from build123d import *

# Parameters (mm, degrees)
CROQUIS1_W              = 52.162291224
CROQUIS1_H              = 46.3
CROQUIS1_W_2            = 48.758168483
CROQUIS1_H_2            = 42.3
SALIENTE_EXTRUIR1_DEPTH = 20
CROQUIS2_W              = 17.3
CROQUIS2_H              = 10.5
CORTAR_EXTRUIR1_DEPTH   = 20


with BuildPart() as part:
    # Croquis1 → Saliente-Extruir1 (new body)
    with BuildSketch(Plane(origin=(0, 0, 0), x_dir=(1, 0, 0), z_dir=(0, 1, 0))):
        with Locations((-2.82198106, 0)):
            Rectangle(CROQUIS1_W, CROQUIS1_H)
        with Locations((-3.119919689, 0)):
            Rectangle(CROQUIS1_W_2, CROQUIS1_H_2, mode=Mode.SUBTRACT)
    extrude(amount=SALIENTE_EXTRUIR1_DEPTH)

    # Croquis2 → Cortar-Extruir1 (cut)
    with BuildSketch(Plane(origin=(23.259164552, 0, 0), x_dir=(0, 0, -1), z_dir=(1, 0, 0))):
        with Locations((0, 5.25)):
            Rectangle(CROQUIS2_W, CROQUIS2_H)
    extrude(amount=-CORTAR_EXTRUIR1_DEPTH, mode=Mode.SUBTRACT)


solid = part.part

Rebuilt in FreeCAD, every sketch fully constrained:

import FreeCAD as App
import Part
import Sketcher
from FreeCAD import Vector
Q = App.Units.Quantity

doc = App.newDocument("Part")
body = doc.addObject("PartDesign::Body", "Body")

sketch1 = body.newObject("Sketcher::SketchObject", "Sketch")
sketch1.AttachmentSupport = (doc.getObject("XZ_Plane"), [""])
sketch1.MapMode = "FlatFace"
sketch1.addGeometry([
    Part.LineSegment(Vector(-28.903127, -23.15, 0), Vector(-28.903127, 23.15, 0)),
    Part.LineSegment(Vector(-28.903127, 23.15, 0), Vector(23.259165, 23.15, 0)),
    Part.LineSegment(Vector(23.259165, 23.15, 0), Vector(23.259165, -23.15, 0)),
    Part.LineSegment(Vector(23.259165, -23.15, 0), Vector(-28.903127, -23.15, 0)),
    Part.LineSegment(Vector(21.259165, 21.15, 0), Vector(-27.499004, 21.15, 0)),
    Part.LineSegment(Vector(-27.499004, 21.15, 0), Vector(-27.499004, -21.15, 0)),
    Part.LineSegment(Vector(-27.499004, -21.15, 0), Vector(21.259165, -21.15, 0)),
    Part.LineSegment(Vector(21.259165, -21.15, 0), Vector(21.259165, 21.15, 0)),
], False)
sketch1.addConstraint([
    Sketcher.Constraint("Coincident", 0, 2, 1, 1),
    Sketcher.Constraint("Coincident", 1, 2, 2, 1),
    Sketcher.Constraint("Coincident", 2, 2, 3, 1),
    Sketcher.Constraint("Coincident", 3, 2, 0, 1),
    Sketcher.Constraint("Coincident", 4, 2, 5, 1),
    Sketcher.Constraint("Coincident", 5, 2, 6, 1),
    Sketcher.Constraint("Coincident", 6, 2, 7, 1),
    Sketcher.Constraint("Coincident", 7, 2, 4, 1),
    Sketcher.Constraint("Vertical", 0),
    Sketcher.Constraint("Horizontal", 1),
    Sketcher.Constraint("Vertical", 2),
    Sketcher.Constraint("Horizontal", 3),
    Sketcher.Constraint("Horizontal", 4),
    Sketcher.Constraint("Vertical", 5),
    Sketcher.Constraint("Horizontal", 6),
    Sketcher.Constraint("Vertical", 7),
    Sketcher.Constraint("DistanceY", 0, 1, 0, 2, Q("46.3 mm")),
    Sketcher.Constraint("DistanceY", 5, 2, 5, 1, Q("42.3 mm")),
    Sketcher.Constraint("DistanceY", 4, 2, 0, 2, Q("2 mm")),
    Sketcher.Constraint("DistanceX", 6, 2, 2, 2, Q("2 mm")),
    Sketcher.Constraint("DistanceY", -1, 1, 0, 2, Q("23.15 mm")),
    Sketcher.Constraint("DistanceX", 1, 1, 1, 2, Q("52.162291 mm")),
    Sketcher.Constraint("DistanceX", 4, 2, 4, 1, Q("48.758168 mm")),
    Sketcher.Constraint("DistanceX", 0, 2, -1, 1, Q("28.903127 mm")),
])
pad1 = body.newObject("PartDesign::Pad", "Pad")
pad1.Profile = sketch1
pad1.Length = 20
pad1.Reversed = True

sketch2 = body.newObject("Sketcher::SketchObject", "Sketch001")
sketch2.AttachmentSupport = (doc.getObject("YZ_Plane"), [""])
sketch2.MapMode = "FlatFace"
sketch2.AttachmentOffset = App.Placement(Vector(0, 0, 23.259165), App.Rotation())
sketch2.addGeometry([
    Part.LineSegment(Vector(10.5, 8.65, 0), Vector(0, 8.65, 0)),
    Part.LineSegment(Vector(0, 8.65, 0), Vector(0, -8.65, 0)),
    Part.LineSegment(Vector(0, -8.65, 0), Vector(10.5, -8.65, 0)),
    Part.LineSegment(Vector(10.5, -8.65, 0), Vector(10.5, 8.65, 0)),
], False)
sketch2.addConstraint([
    Sketcher.Constraint("Coincident", 0, 2, 1, 1),
    Sketcher.Constraint("Coincident", 1, 2, 2, 1),
    Sketcher.Constraint("Coincident", 2, 2, 3, 1),
    Sketcher.Constraint("Coincident", 3, 2, 0, 1),
    Sketcher.Constraint("Horizontal", 0),
    Sketcher.Constraint("Vertical", 1),
    Sketcher.Constraint("Horizontal", 2),
    Sketcher.Constraint("Vertical", 3),
    Sketcher.Constraint("Symmetric", 0, 2, 1, 2, -1, 1),
    Sketcher.Constraint("DistanceX", 0, 2, 0, 1, Q("10.5 mm")),
    Sketcher.Constraint("DistanceY", 1, 2, 1, 1, Q("17.3 mm")),
])
pocket1 = body.newObject("PartDesign::Pocket", "Pocket")
pocket1.Profile = sketch2
pocket1.Length = 20

doc.recompute()
